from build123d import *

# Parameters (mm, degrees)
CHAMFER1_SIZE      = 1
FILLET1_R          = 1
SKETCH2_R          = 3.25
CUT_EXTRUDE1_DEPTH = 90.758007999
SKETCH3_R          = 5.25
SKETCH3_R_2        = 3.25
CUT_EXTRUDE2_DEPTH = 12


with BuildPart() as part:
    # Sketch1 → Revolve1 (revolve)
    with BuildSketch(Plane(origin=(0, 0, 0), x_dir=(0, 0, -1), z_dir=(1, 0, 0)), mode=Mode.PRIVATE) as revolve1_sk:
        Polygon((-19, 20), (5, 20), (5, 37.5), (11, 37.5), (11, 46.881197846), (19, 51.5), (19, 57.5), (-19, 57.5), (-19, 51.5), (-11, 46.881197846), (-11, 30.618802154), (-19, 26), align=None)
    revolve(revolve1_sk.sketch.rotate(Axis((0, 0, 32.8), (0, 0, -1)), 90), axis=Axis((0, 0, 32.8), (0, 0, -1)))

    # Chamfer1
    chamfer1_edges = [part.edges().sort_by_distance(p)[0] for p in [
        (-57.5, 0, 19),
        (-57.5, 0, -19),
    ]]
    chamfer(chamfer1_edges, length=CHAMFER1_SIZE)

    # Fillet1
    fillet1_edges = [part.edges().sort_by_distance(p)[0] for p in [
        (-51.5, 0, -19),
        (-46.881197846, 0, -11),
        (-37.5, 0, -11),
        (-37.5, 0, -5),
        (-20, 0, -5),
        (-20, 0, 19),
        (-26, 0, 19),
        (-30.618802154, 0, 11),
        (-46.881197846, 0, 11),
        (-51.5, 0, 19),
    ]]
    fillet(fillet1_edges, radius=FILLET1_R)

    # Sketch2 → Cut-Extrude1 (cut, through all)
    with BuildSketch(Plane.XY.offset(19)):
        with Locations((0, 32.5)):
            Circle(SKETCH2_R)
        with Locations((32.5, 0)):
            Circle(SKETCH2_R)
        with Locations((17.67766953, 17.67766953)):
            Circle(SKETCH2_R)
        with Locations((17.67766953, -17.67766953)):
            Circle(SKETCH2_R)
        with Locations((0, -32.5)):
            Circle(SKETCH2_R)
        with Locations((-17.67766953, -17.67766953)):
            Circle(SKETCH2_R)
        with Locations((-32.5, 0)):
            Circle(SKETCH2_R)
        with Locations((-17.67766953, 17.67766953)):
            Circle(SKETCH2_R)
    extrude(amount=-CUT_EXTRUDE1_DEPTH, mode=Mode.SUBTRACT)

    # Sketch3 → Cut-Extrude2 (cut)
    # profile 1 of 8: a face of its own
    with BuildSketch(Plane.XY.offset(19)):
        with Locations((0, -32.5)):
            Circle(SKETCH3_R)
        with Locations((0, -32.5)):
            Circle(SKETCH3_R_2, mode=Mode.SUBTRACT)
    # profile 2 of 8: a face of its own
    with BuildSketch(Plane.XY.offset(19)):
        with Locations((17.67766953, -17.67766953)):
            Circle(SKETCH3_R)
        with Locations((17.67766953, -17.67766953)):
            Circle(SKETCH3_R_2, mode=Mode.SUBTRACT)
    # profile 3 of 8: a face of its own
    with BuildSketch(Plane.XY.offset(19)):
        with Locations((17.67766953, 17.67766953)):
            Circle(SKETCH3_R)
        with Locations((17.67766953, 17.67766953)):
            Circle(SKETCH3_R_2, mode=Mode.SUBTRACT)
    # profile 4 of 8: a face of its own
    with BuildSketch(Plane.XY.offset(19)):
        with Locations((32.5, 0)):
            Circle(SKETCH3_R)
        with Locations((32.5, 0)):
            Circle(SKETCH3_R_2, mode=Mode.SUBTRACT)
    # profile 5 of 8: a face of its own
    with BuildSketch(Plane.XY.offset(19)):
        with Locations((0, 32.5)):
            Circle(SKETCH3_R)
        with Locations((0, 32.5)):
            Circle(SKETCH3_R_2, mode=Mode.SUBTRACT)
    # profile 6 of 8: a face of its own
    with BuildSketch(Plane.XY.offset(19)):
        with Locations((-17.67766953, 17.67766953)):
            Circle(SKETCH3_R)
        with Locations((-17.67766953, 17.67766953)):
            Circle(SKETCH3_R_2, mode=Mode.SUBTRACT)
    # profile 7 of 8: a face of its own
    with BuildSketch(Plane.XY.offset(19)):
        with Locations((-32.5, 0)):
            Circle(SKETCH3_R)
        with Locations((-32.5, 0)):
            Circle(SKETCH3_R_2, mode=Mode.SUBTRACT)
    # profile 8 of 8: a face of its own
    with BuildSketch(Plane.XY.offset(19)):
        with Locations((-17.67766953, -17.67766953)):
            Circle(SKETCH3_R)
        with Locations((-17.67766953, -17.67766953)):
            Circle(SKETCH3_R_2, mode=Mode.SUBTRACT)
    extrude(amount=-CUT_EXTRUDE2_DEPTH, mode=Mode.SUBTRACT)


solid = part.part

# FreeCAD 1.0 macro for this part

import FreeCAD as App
import Part
import Sketcher
from FreeCAD import Vector
Q = App.Units.Quantity


def edges_at(feature, points):
    """Names of the edges that pass closest to the given points."""
    edges = feature.Shape.Edges
    near = lambda p: min(range(len(edges)), key=lambda i: edges[i].distToShape(Part.Vertex(*p))[0])
    return sorted({f"Edge{near(p) + 1}" for p in points})


def add_polygon(sketch, points):
    """Adds a closed chain of lines whose ends are joined by coincident constraints."""
    first, n = sketch.GeometryCount, len(points)
    for a, b in zip(points, points[1:] + points[:1]):
        sketch.addGeometry(Part.LineSegment(App.Vector(*a, 0), App.Vector(*b, 0)), False)
    for i in range(n):
        sketch.addConstraint(Sketcher.Constraint("Coincident", first + i, 2, first + (i + 1) % n, 1))

doc = App.newDocument("Part")
body = doc.addObject("PartDesign::Body", "Body")

sketch1 = body.newObject("Sketcher::SketchObject", "Sketch")
sketch1.AttachmentSupport = (doc.getObject("YZ_Plane"), [""])
sketch1.MapMode = "FlatFace"
add_polygon(sketch1, [(20, 19), (20, -5), (38, -5), (38, -11), (47, -11), (52, -19), (58, -19), (58, 19), (52, 19), (47, 11), (31, 11), (26, 19)])
sketch1.addConstraint(Sketcher.Constraint("Vertical", 0))
sketch1.addConstraint(Sketcher.Constraint("Horizontal", 1))
sketch1.addConstraint(Sketcher.Constraint("Vertical", 2))
sketch1.addConstraint(Sketcher.Constraint("Horizontal", 3))
sketch1.addConstraint(Sketcher.Constraint("Horizontal", 5))
sketch1.addConstraint(Sketcher.Constraint("Vertical", 6))
sketch1.addConstraint(Sketcher.Constraint("Horizontal", 7))
sketch1.addConstraint(Sketcher.Constraint("Horizontal", 9))
sketch1.addConstraint(Sketcher.Constraint("Horizontal", 11))
sketch1.addConstraint(Sketcher.Constraint("Symmetric", 4, 2, 7, 2, -1))
sketch1.addConstraint(Sketcher.Constraint("Symmetric", 3, 2, 8, 2, -1))
sketch1.addConstraint(Sketcher.Constraint("Parallel", 4, 10))
sketch1.addConstraint(Sketcher.Constraint("Horizontal", 7, 2, 10, 2))
sketch1.addConstraint(Sketcher.Constraint("Equal", 7, 11))
sketch1.addConstraint(Sketcher.Constraint("Equal", 11, 2))
sketch1.addConstraint(Sketcher.Constraint("DistanceX", 5, 1, 5, 2, Q("6 mm")))
sketch1.addConstraint(Sketcher.Constraint("DistanceY", 0, 2, 0, 1, Q("24 mm")))
sketch1.addConstraint(Sketcher.Constraint("DistanceY", 6, 1, 6, 2, Q("38 mm")))
sketch1.addConstraint(Sketcher.Constraint("Angle", 4, Q("-60 deg")))
sketch1.addConstraint(Sketcher.Constraint("DistanceX", 1, 1, 1, 2, Q("17.5 mm")))
sketch1.addConstraint(Sketcher.Constraint("DistanceX", -1, 1, 0, 2, Q("20 mm")))
sketch1.addConstraint(Sketcher.Constraint("DistanceX", 2, 2, 4, 2, Q("14 mm")))
revolution = body.newObject("PartDesign::Revolution", "Revolution")
revolution.Profile = sketch1
revolution.ReferenceAxis = (sketch1, ["V_Axis"])
revolution.Angle = 360
doc.recompute()

chamfer = body.newObject("PartDesign::Chamfer", "Chamfer")
chamfer.Base = (revolution, edges_at(revolution, [(-57.5, 0, 19), (-57.5, 0, -19)]))
chamfer.Size = 1
doc.recompute()

fillet = body.newObject("PartDesign::Fillet", "Fillet")
fillet.Base = (chamfer, edges_at(chamfer, [
    (-51.5, 0, -19),
    (-46.881, 0, -11),
    (-37.5, 0, -11),
    (-37.5, 0, -5),
    (-20, 0, -5),
    (-20, 0, 19),
    (-26, 0, 19),
    (-30.619, 0, 11),
    (-46.881, 0, 11),
    (-51.5, 0, 19),
]))
fillet.Radius = 1

sketch2 = body.newObject("Sketcher::SketchObject", "Sketch001")
sketch2.AttachmentSupport = (doc.getObject("XY_Plane"), [""])
sketch2.MapMode = "FlatFace"
sketch2.AttachmentOffset = App.Placement(Vector(0, 0, 19), App.Rotation())
sketch2.addGeometry(Part.Circle(Vector(0, 32.5, 0), Vector(0, 0, 1), 3.2), False)
sketch2.addGeometry(Part.Circle(Vector(32.5, 0, 0), Vector(0, 0, 1), 3.2), False)
sketch2.addGeometry(Part.Circle(Vector(17.7, 17.7, 0), Vector(0, 0, 1), 3.2), False)
sketch2.addGeometry(Part.Circle(Vector(17.7, -17.7, 0), Vector(0, 0, 1), 3.2), False)
sketch2.addGeometry(Part.Circle(Vector(0, -32.5, 0), Vector(0, 0, 1), 3.2), False)
sketch2.addGeometry(Part.Circle(Vector(-17.7, -17.7, 0), Vector(0, 0, 1), 3.2), False)
sketch2.addGeometry(Part.Circle(Vector(-32.5, 0, 0), Vector(0, 0, 1), 3.2), False)
sketch2.addGeometry(Part.Circle(Vector(-17.7, 17.7, 0), Vector(0, 0, 1), 3.2), False)
sketch2.addConstraint(Sketcher.Constraint("Equal", 0, 1))
sketch2.addConstraint(Sketcher.Constraint("Equal", 1, 2))
sketch2.addConstraint(Sketcher.Constraint("Equal", 2, 3))
sketch2.addConstraint(Sketcher.Constraint("Equal", 3, 4))
sketch2.addConstraint(Sketcher.Constraint("Equal", 4, 5))
sketch2.addConstraint(Sketcher.Constraint("Equal", 5, 6))
sketch2.addConstraint(Sketcher.Constraint("Equal", 6, 7))
sketch2.addConstraint(Sketcher.Constraint("Symmetric", 0, 3, 4, 3, -1, 1))
sketch2.addConstraint(Sketcher.Constraint("Symmetric", 2, 3, 5, 3, -1, 1))
sketch2.addConstraint(Sketcher.Constraint("Symmetric", 1, 3, 6, 3, -1, 1))
sketch2.addConstraint(Sketcher.Constraint("Symmetric", 3, 3, 7, 3, -1, 1))
sketch2.addConstraint(Sketcher.Constraint("Symmetric", 3, 3, 5, 3, -2))
sketch2.addConstraint(Sketcher.Constraint("PointOnObject", 0, 3, -2))
sketch2.addConstraint(Sketcher.Constraint("PointOnObject", 1, 3, -1))
sketch2.addConstraint(Sketcher.Constraint("Diameter", 0, Q("6.5 mm")))
sketch2.addConstraint(Sketcher.Constraint("DistanceY", 4, 3, 0, 3, Q("65 mm")))
sketch2.addConstraint(Sketcher.Constraint("DistanceX", -1, 1, 1, 3, Q("32.5 mm")))
sketch2.addConstraint(Sketcher.Constraint("DistanceX", -1, 1, 2, 3, Q("17.67767 mm")))
sketch2.addConstraint(Sketcher.Constraint("DistanceY", -1, 1, 2, 3, Q("17.67767 mm")))
pocket1 = body.newObject("PartDesign::Pocket", "Pocket")
pocket1.Profile = sketch2
pocket1.Type = "ThroughAll"

sketch3 = body.newObject("Sketcher::SketchObject", "Sketch002")
sketch3.AttachmentSupport = (doc.getObject("XY_Plane"), [""])
sketch3.MapMode = "FlatFace"
sketch3.AttachmentOffset = App.Placement(Vector(0, 0, 19), App.Rotation())
sketch3.addGeometry(Part.Circle(Vector(0, -32.5, 0), Vector(0, 0, 1), 5.2), False)
sketch3.addGeometry(Part.Circle(Vector(0, -32.5, 0), Vector(0, 0, 1), 3.2), False)
sketch3.addGeometry(Part.Circle(Vector(17.7, -17.7, 0), Vector(0, 0, 1), 5.2), False)
sketch3.addGeometry(Part.Circle(Vector(17.7, -17.7, 0), Vector(0, 0, 1), 3.2), False)
sketch3.addGeometry(Part.Circle(Vector(17.7, 17.7, 0), Vector(0, 0, 1), 5.2), False)
sketch3.addGeometry(Part.Circle(Vector(17.7, 17.7, 0), Vector(0, 0, 1), 3.2), False)
sketch3.addGeometry(Part.Circle(Vector(32.5, 0, 0), Vector(0, 0, 1), 5.2), False)
sketch3.addGeometry(Part.Circle(Vector(32.5, 0, 0), Vector(0, 0, 1), 3.2), False)
sketch3.addGeometry(Part.Circle(Vector(0, 32.5, 0), Vector(0, 0, 1), 5.2), False)
sketch3.addGeometry(Part.Circle(Vector(0, 32.5, 0), Vector(0, 0, 1), 3.2), False)
sketch3.addGeometry(Part.Circle(Vector(-17.7, 17.7, 0), Vector(0, 0, 1), 5.2), False)
sketch3.addGeometry(Part.Circle(Vector(-17.7, 17.7, 0), Vector(0, 0, 1), 3.2), False)
sketch3.addGeometry(Part.Circle(Vector(-32.5, 0, 0), Vector(0, 0, 1), 5.2), False)
sketch3.addGeometry(Part.Circle(Vector(-32.5, 0, 0), Vector(0, 0, 1), 3.2), False)
sketch3.addGeometry(Part.Circle(Vector(-17.7, -17.7, 0), Vector(0, 0, 1), 5.2), False)
sketch3.addGeometry(Part.Circle(Vector(-17.7, -17.7, 0), Vector(0, 0, 1), 3.2), False)
sketch3.addConstraint(Sketcher.Constraint("Coincident", 1, 3, 0, 3))
sketch3.addConstraint(Sketcher.Constraint("Coincident", 3, 3, 2, 3))
sketch3.addConstraint(Sketcher.Constraint("Coincident", 5, 3, 4, 3))
sketch3.addConstraint(Sketcher.Constraint("Coincident", 7, 3, 6, 3))
sketch3.addConstraint(Sketcher.Constraint("Coincident", 9, 3, 8, 3))
sketch3.addConstraint(Sketcher.Constraint("Coincident", 11, 3, 10, 3))
sketch3.addConstraint(Sketcher.Constraint("Coincident", 13, 3, 12, 3))
sketch3.addConstraint(Sketcher.Constraint("Coincident", 15, 3, 14, 3))
sketch3.addConstraint(Sketcher.Constraint("Equal", 0, 2))
sketch3.addConstraint(Sketcher.Constraint("Equal", 1, 3))
sketch3.addConstraint(Sketcher.Constraint("Equal", 2, 4))
sketch3.addConstraint(Sketcher.Constraint("Equal", 3, 5))
sketch3.addConstraint(Sketcher.Constraint("Equal", 4, 6))
sketch3.addConstraint(Sketcher.Constraint("Equal", 5, 7))
sketch3.addConstraint(Sketcher.Constraint("Equal", 6, 8))
sketch3.addConstraint(Sketcher.Constraint("Equal", 7, 9))
sketch3.addConstraint(Sketcher.Constraint("Equal", 8, 10))
sketch3.addConstraint(Sketcher.Constraint("Equal", 9, 11))
sketch3.addConstraint(Sketcher.Constraint("Equal", 10, 12))
sketch3.addConstraint(Sketcher.Constraint("Equal", 11, 13))
sketch3.addConstraint(Sketcher.Constraint("Equal", 12, 14))
sketch3.addConstraint(Sketcher.Constraint("Equal", 13, 15))
sketch3.addConstraint(Sketcher.Constraint("Symmetric", 0, 3, 8, 3, -1, 1))
sketch3.addConstraint(Sketcher.Constraint("Symmetric", 2, 3, 10, 3, -1, 1))
sketch3.addConstraint(Sketcher.Constraint("Symmetric", 6, 3, 12, 3, -1, 1))
sketch3.addConstraint(Sketcher.Constraint("Symmetric", 4, 3, 14, 3, -1, 1))
sketch3.addConstraint(Sketcher.Constraint("Symmetric", 4, 3, 10, 3, -2))
sketch3.addConstraint(Sketcher.Constraint("PointOnObject", 0, 3, -2))
sketch3.addConstraint(Sketcher.Constraint("PointOnObject", 6, 3, -1))
sketch3.addConstraint(Sketcher.Constraint("Diameter", 0, Q("10.5 mm")))
sketch3.addConstraint(Sketcher.Constraint("Diameter", 1, Q("6.5 mm")))
sketch3.addConstraint(Sketcher.Constraint("DistanceY", 0, 3, -1, 1, Q("32.5 mm")))
sketch3.addConstraint(Sketcher.Constraint("DistanceX", -1, 1, 6, 3, Q("32.5 mm")))
sketch3.addConstraint(Sketcher.Constraint("DistanceX", -1, 1, 2, 3, Q("17.67767 mm")))
sketch3.addConstraint(Sketcher.Constraint("DistanceY", 2, 3, -1, 1, Q("17.67767 mm")))
pocket2 = body.newObject("PartDesign::Pocket", "Pocket001")
pocket2.Profile = sketch3
pocket2.Length = 12

doc.recompute()
